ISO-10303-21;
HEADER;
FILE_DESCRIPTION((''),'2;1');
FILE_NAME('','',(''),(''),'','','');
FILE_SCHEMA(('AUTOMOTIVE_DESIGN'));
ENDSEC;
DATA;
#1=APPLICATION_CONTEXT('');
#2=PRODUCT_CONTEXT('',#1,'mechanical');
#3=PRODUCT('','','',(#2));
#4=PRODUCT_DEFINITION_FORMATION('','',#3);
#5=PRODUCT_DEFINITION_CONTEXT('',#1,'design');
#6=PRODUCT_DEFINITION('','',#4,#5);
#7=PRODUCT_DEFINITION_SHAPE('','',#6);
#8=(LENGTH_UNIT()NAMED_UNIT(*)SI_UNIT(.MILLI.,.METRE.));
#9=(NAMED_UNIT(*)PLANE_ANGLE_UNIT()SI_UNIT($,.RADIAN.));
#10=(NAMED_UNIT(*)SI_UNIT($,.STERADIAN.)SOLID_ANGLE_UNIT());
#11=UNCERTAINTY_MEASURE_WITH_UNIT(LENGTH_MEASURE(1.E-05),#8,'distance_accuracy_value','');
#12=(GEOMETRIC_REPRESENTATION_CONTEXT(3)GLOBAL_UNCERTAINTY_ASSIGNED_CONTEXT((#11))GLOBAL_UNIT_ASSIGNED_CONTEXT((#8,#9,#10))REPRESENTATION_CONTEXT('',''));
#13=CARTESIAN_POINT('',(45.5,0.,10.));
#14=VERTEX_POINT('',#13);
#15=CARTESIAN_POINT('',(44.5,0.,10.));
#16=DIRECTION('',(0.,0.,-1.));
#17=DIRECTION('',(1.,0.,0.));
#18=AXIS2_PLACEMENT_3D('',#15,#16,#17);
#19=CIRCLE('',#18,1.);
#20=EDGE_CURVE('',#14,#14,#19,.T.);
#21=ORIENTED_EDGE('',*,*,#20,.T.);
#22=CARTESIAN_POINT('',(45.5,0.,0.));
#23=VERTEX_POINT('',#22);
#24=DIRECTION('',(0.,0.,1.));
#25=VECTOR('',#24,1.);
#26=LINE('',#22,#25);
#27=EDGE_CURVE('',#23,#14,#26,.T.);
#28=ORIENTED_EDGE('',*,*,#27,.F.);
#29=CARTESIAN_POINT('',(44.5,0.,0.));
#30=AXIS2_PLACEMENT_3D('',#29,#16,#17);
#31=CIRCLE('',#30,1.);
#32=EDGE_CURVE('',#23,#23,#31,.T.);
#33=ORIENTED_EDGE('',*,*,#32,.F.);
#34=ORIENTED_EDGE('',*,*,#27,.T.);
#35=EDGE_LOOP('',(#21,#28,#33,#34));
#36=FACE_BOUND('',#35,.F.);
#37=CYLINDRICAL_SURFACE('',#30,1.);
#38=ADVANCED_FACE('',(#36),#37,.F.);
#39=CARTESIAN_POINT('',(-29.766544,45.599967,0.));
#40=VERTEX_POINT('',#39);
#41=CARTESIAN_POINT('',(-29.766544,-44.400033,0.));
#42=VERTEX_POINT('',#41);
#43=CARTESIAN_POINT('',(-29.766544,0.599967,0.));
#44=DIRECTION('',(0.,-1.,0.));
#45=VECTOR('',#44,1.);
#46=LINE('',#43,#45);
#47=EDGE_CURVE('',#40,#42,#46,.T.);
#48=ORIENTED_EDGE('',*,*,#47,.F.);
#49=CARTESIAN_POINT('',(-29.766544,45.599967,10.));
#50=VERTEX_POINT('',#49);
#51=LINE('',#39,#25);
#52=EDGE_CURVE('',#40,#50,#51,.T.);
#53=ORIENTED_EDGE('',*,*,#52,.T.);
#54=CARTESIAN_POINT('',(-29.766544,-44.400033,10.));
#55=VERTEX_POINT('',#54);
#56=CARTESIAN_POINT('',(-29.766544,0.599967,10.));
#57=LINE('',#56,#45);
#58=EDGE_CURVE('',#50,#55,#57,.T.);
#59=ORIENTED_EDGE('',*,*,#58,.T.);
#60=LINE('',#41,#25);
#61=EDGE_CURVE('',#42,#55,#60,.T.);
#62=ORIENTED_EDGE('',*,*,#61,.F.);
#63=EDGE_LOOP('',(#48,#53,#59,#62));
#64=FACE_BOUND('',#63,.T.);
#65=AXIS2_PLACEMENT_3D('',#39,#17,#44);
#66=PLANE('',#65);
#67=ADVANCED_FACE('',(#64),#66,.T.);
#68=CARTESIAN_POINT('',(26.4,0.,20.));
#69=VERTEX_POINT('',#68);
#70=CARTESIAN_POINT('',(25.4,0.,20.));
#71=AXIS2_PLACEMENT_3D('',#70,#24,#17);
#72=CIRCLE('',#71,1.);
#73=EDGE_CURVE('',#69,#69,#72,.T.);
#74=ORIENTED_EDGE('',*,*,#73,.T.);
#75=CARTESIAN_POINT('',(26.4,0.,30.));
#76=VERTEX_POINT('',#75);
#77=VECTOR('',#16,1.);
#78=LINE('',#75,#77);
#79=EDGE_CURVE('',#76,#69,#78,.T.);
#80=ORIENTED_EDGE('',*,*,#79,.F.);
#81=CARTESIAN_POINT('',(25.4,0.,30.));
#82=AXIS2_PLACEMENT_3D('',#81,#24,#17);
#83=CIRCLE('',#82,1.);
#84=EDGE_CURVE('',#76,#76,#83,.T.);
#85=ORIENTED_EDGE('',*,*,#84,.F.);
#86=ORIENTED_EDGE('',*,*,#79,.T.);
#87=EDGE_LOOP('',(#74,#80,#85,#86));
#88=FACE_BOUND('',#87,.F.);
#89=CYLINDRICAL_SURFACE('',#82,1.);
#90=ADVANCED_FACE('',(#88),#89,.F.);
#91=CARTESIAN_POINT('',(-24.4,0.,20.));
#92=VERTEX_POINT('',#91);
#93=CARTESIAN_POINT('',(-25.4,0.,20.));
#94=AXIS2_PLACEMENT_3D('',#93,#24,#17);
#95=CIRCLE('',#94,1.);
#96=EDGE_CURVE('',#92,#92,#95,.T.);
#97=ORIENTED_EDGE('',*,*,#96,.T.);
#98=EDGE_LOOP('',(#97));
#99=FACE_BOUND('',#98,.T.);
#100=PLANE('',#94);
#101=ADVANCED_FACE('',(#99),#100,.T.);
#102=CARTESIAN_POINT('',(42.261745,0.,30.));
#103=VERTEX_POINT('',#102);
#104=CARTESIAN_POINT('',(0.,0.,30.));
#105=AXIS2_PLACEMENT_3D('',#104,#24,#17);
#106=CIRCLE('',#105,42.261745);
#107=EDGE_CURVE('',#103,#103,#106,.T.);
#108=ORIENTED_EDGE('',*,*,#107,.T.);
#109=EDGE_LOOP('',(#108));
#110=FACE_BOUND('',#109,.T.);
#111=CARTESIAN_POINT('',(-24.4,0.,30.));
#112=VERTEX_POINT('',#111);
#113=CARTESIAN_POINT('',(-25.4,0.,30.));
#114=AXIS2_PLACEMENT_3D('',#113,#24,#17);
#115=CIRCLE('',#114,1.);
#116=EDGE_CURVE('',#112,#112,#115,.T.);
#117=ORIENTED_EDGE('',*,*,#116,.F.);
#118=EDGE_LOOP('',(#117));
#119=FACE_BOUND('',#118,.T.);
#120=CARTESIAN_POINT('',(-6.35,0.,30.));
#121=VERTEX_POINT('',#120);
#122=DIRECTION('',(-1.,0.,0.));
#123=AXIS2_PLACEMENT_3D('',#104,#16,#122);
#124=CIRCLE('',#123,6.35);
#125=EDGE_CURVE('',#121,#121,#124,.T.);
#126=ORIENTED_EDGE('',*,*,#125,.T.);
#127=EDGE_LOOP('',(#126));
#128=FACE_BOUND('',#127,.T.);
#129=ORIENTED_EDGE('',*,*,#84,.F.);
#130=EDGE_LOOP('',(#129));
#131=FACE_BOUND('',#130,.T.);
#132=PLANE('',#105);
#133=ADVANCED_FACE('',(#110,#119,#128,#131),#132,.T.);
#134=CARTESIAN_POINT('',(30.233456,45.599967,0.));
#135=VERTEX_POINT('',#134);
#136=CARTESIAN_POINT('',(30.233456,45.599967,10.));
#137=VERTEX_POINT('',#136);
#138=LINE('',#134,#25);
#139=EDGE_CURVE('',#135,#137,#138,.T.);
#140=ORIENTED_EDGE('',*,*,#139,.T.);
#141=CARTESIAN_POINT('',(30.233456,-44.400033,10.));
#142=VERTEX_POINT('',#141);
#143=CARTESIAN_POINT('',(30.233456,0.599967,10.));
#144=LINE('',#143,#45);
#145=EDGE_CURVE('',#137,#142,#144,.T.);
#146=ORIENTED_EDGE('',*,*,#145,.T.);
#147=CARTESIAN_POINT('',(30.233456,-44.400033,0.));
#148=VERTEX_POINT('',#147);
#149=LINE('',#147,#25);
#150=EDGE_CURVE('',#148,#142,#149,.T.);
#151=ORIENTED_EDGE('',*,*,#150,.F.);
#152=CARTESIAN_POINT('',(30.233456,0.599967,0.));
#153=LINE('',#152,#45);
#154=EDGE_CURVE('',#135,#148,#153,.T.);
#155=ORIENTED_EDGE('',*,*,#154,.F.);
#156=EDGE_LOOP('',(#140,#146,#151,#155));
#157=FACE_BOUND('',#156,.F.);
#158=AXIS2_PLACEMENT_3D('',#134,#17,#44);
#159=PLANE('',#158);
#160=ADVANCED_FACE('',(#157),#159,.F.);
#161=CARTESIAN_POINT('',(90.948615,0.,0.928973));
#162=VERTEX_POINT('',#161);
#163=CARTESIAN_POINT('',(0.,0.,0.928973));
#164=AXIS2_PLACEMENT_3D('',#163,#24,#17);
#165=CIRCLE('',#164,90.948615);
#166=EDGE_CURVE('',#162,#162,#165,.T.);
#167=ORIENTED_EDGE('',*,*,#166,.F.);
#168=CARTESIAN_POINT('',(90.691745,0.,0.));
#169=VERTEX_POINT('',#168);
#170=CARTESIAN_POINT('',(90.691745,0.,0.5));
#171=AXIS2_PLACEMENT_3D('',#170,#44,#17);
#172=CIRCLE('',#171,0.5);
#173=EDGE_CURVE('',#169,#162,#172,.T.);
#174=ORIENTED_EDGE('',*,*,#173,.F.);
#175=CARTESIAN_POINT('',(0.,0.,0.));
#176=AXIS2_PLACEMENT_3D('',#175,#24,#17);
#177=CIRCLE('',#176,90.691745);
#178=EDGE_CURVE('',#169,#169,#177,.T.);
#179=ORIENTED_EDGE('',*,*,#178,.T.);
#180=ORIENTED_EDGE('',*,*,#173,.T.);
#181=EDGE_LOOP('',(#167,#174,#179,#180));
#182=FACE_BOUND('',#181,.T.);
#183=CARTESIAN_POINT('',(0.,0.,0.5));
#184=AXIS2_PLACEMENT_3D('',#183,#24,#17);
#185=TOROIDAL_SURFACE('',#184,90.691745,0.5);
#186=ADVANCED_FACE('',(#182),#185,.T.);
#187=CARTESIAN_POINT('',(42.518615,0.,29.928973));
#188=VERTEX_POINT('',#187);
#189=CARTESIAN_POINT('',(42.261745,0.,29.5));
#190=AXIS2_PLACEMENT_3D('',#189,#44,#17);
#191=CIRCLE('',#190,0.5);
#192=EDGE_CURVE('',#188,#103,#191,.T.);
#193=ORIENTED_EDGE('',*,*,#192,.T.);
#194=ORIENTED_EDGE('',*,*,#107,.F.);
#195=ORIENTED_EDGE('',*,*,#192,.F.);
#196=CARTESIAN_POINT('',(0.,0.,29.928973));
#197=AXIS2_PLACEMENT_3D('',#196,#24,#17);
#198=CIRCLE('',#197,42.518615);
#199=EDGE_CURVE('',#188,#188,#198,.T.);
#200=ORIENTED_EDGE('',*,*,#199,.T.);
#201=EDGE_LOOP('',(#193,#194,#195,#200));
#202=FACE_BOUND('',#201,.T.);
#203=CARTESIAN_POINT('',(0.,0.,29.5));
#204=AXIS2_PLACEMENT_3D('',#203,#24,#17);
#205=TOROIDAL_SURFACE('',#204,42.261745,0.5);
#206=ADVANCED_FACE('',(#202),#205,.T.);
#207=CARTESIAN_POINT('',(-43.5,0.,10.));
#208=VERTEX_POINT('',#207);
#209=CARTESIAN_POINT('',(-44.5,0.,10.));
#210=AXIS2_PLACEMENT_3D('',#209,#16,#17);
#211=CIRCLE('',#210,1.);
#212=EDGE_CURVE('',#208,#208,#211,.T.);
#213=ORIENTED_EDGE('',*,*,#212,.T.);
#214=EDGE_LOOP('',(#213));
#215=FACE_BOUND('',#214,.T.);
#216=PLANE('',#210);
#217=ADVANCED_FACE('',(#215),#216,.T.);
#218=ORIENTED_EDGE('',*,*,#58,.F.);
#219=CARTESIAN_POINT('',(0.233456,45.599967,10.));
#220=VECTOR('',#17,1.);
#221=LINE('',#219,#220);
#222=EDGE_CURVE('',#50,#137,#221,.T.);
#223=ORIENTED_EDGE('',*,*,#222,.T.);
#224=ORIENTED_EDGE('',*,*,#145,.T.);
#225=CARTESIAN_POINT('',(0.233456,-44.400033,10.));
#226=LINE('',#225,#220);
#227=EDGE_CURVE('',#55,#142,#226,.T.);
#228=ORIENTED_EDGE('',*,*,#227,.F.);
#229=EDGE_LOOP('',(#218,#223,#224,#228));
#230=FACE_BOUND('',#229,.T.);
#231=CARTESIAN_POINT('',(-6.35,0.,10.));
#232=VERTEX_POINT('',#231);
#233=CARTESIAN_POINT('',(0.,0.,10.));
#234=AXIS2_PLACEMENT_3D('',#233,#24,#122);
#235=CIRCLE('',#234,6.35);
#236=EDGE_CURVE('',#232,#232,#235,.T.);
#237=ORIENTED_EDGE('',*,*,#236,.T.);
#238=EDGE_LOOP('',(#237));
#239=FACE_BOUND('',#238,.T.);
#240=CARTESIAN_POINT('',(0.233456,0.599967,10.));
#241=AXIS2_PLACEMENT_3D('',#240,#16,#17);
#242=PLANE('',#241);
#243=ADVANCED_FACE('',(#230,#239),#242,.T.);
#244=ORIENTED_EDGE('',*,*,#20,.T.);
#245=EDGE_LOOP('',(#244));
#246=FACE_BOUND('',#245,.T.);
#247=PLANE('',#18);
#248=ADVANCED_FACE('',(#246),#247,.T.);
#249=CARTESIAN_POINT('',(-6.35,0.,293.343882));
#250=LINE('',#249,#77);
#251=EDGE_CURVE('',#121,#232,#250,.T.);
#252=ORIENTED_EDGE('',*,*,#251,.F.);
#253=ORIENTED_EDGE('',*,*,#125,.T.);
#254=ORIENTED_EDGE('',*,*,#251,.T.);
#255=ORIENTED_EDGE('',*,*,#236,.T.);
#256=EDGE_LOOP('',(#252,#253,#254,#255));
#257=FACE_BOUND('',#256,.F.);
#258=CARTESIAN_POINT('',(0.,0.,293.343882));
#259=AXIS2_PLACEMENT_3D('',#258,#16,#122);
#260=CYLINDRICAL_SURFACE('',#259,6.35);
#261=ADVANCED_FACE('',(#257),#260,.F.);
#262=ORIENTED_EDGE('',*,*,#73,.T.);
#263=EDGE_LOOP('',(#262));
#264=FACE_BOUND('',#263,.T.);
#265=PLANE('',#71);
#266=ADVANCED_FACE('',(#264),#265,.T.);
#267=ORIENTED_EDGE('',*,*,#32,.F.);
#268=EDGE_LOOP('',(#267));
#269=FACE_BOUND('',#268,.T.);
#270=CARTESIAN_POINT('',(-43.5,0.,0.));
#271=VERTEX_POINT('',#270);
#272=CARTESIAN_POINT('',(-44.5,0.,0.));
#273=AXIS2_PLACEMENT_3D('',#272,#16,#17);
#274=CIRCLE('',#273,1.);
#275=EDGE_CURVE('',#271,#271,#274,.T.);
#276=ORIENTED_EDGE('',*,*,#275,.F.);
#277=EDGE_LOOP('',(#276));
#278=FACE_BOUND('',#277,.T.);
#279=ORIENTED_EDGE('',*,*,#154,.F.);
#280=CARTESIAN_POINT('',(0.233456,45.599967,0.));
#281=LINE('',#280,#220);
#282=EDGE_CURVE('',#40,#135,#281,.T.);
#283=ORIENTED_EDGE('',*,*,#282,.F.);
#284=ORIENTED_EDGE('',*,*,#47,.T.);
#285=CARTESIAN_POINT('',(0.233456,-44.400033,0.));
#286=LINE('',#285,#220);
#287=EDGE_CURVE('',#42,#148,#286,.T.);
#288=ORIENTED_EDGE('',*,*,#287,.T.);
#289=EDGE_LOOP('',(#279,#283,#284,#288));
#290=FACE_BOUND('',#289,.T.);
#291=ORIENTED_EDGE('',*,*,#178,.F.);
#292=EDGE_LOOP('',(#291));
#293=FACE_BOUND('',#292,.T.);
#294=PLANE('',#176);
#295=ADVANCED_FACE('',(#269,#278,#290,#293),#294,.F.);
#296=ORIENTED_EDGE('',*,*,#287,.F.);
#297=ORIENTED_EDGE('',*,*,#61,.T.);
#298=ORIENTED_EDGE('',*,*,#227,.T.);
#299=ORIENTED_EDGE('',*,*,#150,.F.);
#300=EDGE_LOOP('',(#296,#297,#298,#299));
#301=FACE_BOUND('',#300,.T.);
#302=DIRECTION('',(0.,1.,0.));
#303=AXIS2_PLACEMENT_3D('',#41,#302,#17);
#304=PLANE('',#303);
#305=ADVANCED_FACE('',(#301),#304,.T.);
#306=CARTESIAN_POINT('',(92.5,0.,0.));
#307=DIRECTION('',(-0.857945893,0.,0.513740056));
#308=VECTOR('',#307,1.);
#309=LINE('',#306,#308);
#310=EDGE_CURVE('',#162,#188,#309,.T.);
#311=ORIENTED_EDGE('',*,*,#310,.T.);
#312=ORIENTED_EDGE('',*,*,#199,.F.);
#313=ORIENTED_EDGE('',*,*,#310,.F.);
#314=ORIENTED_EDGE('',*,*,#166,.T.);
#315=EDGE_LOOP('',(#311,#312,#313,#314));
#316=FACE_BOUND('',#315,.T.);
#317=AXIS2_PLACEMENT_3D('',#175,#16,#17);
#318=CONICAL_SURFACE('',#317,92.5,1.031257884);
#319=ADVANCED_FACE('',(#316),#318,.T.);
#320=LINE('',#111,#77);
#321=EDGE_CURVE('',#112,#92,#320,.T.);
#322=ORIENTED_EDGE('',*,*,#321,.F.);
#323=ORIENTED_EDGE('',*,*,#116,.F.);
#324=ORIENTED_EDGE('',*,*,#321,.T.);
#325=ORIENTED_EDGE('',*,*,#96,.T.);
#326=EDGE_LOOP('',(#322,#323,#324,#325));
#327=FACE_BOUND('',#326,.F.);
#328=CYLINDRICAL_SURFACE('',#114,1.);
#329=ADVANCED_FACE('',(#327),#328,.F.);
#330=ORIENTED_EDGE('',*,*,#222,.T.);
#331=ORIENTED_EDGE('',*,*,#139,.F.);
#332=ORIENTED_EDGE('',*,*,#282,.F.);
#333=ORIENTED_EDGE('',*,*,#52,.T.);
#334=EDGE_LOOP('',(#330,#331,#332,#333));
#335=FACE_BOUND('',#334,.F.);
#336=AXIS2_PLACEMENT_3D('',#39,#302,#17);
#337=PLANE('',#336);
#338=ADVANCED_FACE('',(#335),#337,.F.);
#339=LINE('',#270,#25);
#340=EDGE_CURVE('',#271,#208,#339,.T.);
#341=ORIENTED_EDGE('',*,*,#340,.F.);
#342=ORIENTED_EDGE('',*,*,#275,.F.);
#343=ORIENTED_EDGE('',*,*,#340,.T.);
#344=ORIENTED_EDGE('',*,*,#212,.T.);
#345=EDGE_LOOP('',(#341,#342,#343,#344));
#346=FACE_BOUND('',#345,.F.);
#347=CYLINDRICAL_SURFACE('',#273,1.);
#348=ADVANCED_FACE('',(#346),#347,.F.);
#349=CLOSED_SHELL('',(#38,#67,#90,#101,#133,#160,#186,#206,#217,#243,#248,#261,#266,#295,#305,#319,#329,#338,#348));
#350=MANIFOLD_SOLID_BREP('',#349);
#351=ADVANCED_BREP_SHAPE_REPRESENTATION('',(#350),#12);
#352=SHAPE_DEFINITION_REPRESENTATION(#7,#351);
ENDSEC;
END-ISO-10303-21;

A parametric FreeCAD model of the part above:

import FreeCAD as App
import Part
import Sketcher
Q = App.Units.Quantity


def edges_at(feature, points):
    """Names of the edges that pass closest to the given points."""
    edges = feature.Shape.Edges
    near = lambda p: min(range(len(edges)), key=lambda i: edges[i].distToShape(Part.Vertex(*p))[0])
    return sorted({f"Edge{near(p) + 1}" for p in points})

doc = App.newDocument("Part")
params = doc.addObject("Spreadsheet::Sheet", "Params")
for row, (alias, value) in enumerate([
    ("sketch1_height", "30 mm"),
    ("sketch1_width", "92.5 mm"),
    ("sketch1_width2", "42.4 mm"),
    ("revolution_angle", "360 deg"),
    ("sketch2_diameter", "12.7 mm"),
    ("hole_diameter", "12.7 mm"),
    ("sketch3_diameter", "12.7 mm"),
    ("sketch3_width", "60 mm"),
    ("sketch3_height", "90 mm"),
    ("pocket1_length", "10 mm"),
    ("sketch4_diameter", "2 mm"),
    ("pocket2_length", "10 mm"),
    ("sketch5_diameter", "2 mm"),
    ("pocket3_length", "10 mm"),
    ("fillet_radius", "0.5 mm"),
], start=1):
    params.set(f"A{row}", alias)
    params.set(f"B{row}", "=" + value)
    params.setAlias(f"B{row}", alias)

body = doc.addObject("PartDesign::Body", "Body")

# Sketch on XZ plane
sketch1 = body.newObject("Sketcher::SketchObject", "Sketch")
sketch1.AttachmentSupport = (doc.getObject("XZ_Plane"), [""])
sketch1.MapMode = "FlatFace"
sketch1.addGeometry([
    Part.LineSegment(App.Vector(0, 30, 0), App.Vector(0, 0, 0)),
    Part.LineSegment(App.Vector(0, 0, 0), App.Vector(92.5, 0, 0)),
    Part.LineSegment(App.Vector(92.5, 0, 0), App.Vector(42.4, 30, 0)),
    Part.LineSegment(App.Vector(42.4, 30, 0), App.Vector(0, 30, 0)),
], False)
sketch1.addConstraint([
    Sketcher.Constraint("Coincident", 0, 2, 1, 1),
    Sketcher.Constraint("Coincident", 1, 2, 2, 1),
    Sketcher.Constraint("Coincident", 2, 2, 3, 1),
    Sketcher.Constraint("Coincident", 3, 2, 0, 1),
    Sketcher.Constraint("Vertical", 0),
    Sketcher.Constraint("Horizontal", 1),
    Sketcher.Constraint("Horizontal", 3),
    Sketcher.Constraint("Coincident", 0, 2, -1, 1),
    Sketcher.Constraint("DistanceY", 0, 2, 0, 1, Q("30 mm")),
    Sketcher.Constraint("DistanceX", 1, 1, 1, 2, Q("92.5 mm")),
    Sketcher.Constraint("DistanceX", 3, 2, 3, 1, Q("42.4 mm")),
])
sketch1.setExpression("Constraints[8]", "Params.sketch1_height")
sketch1.setExpression("Constraints[9]", "Params.sketch1_width")
sketch1.setExpression("Constraints[10]", "Params.sketch1_width2")
revolution = body.newObject("PartDesign::Revolution", "Revolution")
revolution.Profile = sketch1
revolution.ReferenceAxis = (sketch1, ["V_Axis"])
revolution.setExpression("Angle", "Params.revolution_angle")

# Sketch on XY plane
sketch2 = body.newObject("Sketcher::SketchObject", "Sketch001")
sketch2.AttachmentSupport = (doc.getObject("XY_Plane"), [""])
sketch2.MapMode = "FlatFace"
sketch2.AttachmentOffset = App.Placement(App.Vector(0, 0, 30), App.Rotation())
sketch2.addGeometry(Part.Circle(App.Vector(0, 0, 0), App.Vector(0, 0, 1), 6.35), False)
sketch2.addConstraint([
    Sketcher.Constraint("Coincident", 0, 3, -1, 1),
    Sketcher.Constraint("Diameter", 0, Q("12.7 mm")),
])
sketch2.setExpression("Constraints[1]", "Params.sketch2_diameter")
doc.recompute()
hole = body.newObject("PartDesign::Hole", "Hole")
hole.Profile = sketch2
hole.ThreadType = "None"
hole.setExpression("Diameter", "Params.hole_diameter")
hole.DepthType = "ThroughAll"

# Sketch on XY plane
sketch3 = body.newObject("Sketcher::SketchObject", "Sketch002")
sketch3.AttachmentSupport = (doc.getObject("XY_Plane"), [""])
sketch3.MapMode = "FlatFace"
sketch3.addGeometry([
    Part.LineSegment(App.Vector(-29.766544, -44.400033, 0), App.Vector(-29.766544, 45.599967, 0)),  # 0
    Part.LineSegment(App.Vector(-29.766544, 45.599967, 0), App.Vector(30.233456, 45.599967, 0)),  # 1
    Part.LineSegment(App.Vector(30.233456, 45.599967, 0), App.Vector(30.233456, -44.400033, 0)),  # 2
    Part.LineSegment(App.Vector(30.233456, -44.400033, 0), App.Vector(-29.766544, -44.400033, 0)),  # 3
    Part.Circle(App.Vector(0, 0, 0), App.Vector(0, 0, 1), 6.35),  # 4
], False)
sketch3.addConstraint([
    Sketcher.Constraint("Coincident", 0, 2, 1, 1),
    Sketcher.Constraint("Coincident", 1, 2, 2, 1),
    Sketcher.Constraint("Coincident", 2, 2, 3, 1),
    Sketcher.Constraint("Coincident", 3, 2, 0, 1),
    Sketcher.Constraint("Vertical", 0),
    Sketcher.Constraint("Horizontal", 1),
    Sketcher.Constraint("Vertical", 2),
    Sketcher.Constraint("Horizontal", 3),
    Sketcher.Constraint("Coincident", 4, 3, -1, 1),
    Sketcher.Constraint("Diameter", 4, Q("12.7 mm")),
    Sketcher.Constraint("DistanceX", 1, 1, 1, 2, Q("60 mm")),
    Sketcher.Constraint("DistanceY", 0, 1, 0, 2, Q("90 mm")),
    Sketcher.Constraint("DistanceX", 0, 2, -1, 1, Q("29.766544 mm")),
    Sketcher.Constraint("DistanceY", -1, 1, 0, 2, Q("45.599967 mm")),
])
sketch3.setExpression("Constraints[9]", "Params.sketch3_diameter")
sketch3.setExpression("Constraints[10]", "Params.sketch3_width")
sketch3.setExpression("Constraints[11]", "Params.sketch3_height")
pocket1 = body.newObject("PartDesign::Pocket", "Pocket")
pocket1.Profile = sketch3
pocket1.setExpression("Length", "Params.pocket1_length")
pocket1.Reversed = True

# Sketch on XY plane
sketch4 = body.newObject("Sketcher::SketchObject", "Sketch003")
sketch4.AttachmentSupport = (doc.getObject("XY_Plane"), [""])
sketch4.MapMode = "FlatFace"
sketch4.addGeometry([
    Part.Circle(App.Vector(-44.5, 0, 0), App.Vector(0, 0, 1), 1),
    Part.Circle(App.Vector(44.5, 0, 0), App.Vector(0, 0, 1), 1),
], False)
sketch4.addConstraint([
    Sketcher.Constraint("Equal", 0, 1),
    Sketcher.Constraint("Symmetric", 0, 3, 1, 3, -1, 1),
    Sketcher.Constraint("PointOnObject", 0, 3, -1),
    Sketcher.Constraint("Diameter", 0, Q("2 mm")),
    Sketcher.Constraint("DistanceX", 0, 3, 1, 3, Q("89 mm")),
])
sketch4.setExpression("Constraints[3]", "Params.sketch4_diameter")
pocket2 = body.newObject("PartDesign::Pocket", "Pocket001")
pocket2.Profile = sketch4
pocket2.setExpression("Length", "Params.pocket2_length")
pocket2.Reversed = True

# Sketch on XY plane
sketch5 = body.newObject("Sketcher::SketchObject", "Sketch004")
sketch5.AttachmentSupport = (doc.getObject("XY_Plane"), [""])
sketch5.MapMode = "FlatFace"
sketch5.AttachmentOffset = App.Placement(App.Vector(0, 0, 30), App.Rotation())
sketch5.addGeometry([
    Part.Circle(App.Vector(-25.4, 0, 0), App.Vector(0, 0, 1), 1),
    Part.Circle(App.Vector(25.4, 0, 0), App.Vector(0, 0, 1), 1),
], False)
sketch5.addConstraint([
    Sketcher.Constraint("Equal", 0, 1),
    Sketcher.Constraint("Symmetric", 0, 3, 1, 3, -1, 1),
    Sketcher.Constraint("PointOnObject", 0, 3, -1),
    Sketcher.Constraint("Diameter", 0, Q("2 mm")),
    Sketcher.Constraint("DistanceX", 0, 3, -1, 1, Q("25.4 mm")),
])
sketch5.setExpression("Constraints[3]", "Params.sketch5_diameter")
pocket3 = body.newObject("PartDesign::Pocket", "Pocket002")
pocket3.Profile = sketch5
pocket3.setExpression("Length", "Params.pocket3_length")
doc.recompute()

fillet = body.newObject("PartDesign::Fillet", "Fillet")
fillet.Base = (pocket3, edges_at(pocket3, [(-92.5, 0, 0), (-42.4, 0, 30)]))
fillet.setExpression("Radius", "Params.fillet_radius")

doc.recompute()
